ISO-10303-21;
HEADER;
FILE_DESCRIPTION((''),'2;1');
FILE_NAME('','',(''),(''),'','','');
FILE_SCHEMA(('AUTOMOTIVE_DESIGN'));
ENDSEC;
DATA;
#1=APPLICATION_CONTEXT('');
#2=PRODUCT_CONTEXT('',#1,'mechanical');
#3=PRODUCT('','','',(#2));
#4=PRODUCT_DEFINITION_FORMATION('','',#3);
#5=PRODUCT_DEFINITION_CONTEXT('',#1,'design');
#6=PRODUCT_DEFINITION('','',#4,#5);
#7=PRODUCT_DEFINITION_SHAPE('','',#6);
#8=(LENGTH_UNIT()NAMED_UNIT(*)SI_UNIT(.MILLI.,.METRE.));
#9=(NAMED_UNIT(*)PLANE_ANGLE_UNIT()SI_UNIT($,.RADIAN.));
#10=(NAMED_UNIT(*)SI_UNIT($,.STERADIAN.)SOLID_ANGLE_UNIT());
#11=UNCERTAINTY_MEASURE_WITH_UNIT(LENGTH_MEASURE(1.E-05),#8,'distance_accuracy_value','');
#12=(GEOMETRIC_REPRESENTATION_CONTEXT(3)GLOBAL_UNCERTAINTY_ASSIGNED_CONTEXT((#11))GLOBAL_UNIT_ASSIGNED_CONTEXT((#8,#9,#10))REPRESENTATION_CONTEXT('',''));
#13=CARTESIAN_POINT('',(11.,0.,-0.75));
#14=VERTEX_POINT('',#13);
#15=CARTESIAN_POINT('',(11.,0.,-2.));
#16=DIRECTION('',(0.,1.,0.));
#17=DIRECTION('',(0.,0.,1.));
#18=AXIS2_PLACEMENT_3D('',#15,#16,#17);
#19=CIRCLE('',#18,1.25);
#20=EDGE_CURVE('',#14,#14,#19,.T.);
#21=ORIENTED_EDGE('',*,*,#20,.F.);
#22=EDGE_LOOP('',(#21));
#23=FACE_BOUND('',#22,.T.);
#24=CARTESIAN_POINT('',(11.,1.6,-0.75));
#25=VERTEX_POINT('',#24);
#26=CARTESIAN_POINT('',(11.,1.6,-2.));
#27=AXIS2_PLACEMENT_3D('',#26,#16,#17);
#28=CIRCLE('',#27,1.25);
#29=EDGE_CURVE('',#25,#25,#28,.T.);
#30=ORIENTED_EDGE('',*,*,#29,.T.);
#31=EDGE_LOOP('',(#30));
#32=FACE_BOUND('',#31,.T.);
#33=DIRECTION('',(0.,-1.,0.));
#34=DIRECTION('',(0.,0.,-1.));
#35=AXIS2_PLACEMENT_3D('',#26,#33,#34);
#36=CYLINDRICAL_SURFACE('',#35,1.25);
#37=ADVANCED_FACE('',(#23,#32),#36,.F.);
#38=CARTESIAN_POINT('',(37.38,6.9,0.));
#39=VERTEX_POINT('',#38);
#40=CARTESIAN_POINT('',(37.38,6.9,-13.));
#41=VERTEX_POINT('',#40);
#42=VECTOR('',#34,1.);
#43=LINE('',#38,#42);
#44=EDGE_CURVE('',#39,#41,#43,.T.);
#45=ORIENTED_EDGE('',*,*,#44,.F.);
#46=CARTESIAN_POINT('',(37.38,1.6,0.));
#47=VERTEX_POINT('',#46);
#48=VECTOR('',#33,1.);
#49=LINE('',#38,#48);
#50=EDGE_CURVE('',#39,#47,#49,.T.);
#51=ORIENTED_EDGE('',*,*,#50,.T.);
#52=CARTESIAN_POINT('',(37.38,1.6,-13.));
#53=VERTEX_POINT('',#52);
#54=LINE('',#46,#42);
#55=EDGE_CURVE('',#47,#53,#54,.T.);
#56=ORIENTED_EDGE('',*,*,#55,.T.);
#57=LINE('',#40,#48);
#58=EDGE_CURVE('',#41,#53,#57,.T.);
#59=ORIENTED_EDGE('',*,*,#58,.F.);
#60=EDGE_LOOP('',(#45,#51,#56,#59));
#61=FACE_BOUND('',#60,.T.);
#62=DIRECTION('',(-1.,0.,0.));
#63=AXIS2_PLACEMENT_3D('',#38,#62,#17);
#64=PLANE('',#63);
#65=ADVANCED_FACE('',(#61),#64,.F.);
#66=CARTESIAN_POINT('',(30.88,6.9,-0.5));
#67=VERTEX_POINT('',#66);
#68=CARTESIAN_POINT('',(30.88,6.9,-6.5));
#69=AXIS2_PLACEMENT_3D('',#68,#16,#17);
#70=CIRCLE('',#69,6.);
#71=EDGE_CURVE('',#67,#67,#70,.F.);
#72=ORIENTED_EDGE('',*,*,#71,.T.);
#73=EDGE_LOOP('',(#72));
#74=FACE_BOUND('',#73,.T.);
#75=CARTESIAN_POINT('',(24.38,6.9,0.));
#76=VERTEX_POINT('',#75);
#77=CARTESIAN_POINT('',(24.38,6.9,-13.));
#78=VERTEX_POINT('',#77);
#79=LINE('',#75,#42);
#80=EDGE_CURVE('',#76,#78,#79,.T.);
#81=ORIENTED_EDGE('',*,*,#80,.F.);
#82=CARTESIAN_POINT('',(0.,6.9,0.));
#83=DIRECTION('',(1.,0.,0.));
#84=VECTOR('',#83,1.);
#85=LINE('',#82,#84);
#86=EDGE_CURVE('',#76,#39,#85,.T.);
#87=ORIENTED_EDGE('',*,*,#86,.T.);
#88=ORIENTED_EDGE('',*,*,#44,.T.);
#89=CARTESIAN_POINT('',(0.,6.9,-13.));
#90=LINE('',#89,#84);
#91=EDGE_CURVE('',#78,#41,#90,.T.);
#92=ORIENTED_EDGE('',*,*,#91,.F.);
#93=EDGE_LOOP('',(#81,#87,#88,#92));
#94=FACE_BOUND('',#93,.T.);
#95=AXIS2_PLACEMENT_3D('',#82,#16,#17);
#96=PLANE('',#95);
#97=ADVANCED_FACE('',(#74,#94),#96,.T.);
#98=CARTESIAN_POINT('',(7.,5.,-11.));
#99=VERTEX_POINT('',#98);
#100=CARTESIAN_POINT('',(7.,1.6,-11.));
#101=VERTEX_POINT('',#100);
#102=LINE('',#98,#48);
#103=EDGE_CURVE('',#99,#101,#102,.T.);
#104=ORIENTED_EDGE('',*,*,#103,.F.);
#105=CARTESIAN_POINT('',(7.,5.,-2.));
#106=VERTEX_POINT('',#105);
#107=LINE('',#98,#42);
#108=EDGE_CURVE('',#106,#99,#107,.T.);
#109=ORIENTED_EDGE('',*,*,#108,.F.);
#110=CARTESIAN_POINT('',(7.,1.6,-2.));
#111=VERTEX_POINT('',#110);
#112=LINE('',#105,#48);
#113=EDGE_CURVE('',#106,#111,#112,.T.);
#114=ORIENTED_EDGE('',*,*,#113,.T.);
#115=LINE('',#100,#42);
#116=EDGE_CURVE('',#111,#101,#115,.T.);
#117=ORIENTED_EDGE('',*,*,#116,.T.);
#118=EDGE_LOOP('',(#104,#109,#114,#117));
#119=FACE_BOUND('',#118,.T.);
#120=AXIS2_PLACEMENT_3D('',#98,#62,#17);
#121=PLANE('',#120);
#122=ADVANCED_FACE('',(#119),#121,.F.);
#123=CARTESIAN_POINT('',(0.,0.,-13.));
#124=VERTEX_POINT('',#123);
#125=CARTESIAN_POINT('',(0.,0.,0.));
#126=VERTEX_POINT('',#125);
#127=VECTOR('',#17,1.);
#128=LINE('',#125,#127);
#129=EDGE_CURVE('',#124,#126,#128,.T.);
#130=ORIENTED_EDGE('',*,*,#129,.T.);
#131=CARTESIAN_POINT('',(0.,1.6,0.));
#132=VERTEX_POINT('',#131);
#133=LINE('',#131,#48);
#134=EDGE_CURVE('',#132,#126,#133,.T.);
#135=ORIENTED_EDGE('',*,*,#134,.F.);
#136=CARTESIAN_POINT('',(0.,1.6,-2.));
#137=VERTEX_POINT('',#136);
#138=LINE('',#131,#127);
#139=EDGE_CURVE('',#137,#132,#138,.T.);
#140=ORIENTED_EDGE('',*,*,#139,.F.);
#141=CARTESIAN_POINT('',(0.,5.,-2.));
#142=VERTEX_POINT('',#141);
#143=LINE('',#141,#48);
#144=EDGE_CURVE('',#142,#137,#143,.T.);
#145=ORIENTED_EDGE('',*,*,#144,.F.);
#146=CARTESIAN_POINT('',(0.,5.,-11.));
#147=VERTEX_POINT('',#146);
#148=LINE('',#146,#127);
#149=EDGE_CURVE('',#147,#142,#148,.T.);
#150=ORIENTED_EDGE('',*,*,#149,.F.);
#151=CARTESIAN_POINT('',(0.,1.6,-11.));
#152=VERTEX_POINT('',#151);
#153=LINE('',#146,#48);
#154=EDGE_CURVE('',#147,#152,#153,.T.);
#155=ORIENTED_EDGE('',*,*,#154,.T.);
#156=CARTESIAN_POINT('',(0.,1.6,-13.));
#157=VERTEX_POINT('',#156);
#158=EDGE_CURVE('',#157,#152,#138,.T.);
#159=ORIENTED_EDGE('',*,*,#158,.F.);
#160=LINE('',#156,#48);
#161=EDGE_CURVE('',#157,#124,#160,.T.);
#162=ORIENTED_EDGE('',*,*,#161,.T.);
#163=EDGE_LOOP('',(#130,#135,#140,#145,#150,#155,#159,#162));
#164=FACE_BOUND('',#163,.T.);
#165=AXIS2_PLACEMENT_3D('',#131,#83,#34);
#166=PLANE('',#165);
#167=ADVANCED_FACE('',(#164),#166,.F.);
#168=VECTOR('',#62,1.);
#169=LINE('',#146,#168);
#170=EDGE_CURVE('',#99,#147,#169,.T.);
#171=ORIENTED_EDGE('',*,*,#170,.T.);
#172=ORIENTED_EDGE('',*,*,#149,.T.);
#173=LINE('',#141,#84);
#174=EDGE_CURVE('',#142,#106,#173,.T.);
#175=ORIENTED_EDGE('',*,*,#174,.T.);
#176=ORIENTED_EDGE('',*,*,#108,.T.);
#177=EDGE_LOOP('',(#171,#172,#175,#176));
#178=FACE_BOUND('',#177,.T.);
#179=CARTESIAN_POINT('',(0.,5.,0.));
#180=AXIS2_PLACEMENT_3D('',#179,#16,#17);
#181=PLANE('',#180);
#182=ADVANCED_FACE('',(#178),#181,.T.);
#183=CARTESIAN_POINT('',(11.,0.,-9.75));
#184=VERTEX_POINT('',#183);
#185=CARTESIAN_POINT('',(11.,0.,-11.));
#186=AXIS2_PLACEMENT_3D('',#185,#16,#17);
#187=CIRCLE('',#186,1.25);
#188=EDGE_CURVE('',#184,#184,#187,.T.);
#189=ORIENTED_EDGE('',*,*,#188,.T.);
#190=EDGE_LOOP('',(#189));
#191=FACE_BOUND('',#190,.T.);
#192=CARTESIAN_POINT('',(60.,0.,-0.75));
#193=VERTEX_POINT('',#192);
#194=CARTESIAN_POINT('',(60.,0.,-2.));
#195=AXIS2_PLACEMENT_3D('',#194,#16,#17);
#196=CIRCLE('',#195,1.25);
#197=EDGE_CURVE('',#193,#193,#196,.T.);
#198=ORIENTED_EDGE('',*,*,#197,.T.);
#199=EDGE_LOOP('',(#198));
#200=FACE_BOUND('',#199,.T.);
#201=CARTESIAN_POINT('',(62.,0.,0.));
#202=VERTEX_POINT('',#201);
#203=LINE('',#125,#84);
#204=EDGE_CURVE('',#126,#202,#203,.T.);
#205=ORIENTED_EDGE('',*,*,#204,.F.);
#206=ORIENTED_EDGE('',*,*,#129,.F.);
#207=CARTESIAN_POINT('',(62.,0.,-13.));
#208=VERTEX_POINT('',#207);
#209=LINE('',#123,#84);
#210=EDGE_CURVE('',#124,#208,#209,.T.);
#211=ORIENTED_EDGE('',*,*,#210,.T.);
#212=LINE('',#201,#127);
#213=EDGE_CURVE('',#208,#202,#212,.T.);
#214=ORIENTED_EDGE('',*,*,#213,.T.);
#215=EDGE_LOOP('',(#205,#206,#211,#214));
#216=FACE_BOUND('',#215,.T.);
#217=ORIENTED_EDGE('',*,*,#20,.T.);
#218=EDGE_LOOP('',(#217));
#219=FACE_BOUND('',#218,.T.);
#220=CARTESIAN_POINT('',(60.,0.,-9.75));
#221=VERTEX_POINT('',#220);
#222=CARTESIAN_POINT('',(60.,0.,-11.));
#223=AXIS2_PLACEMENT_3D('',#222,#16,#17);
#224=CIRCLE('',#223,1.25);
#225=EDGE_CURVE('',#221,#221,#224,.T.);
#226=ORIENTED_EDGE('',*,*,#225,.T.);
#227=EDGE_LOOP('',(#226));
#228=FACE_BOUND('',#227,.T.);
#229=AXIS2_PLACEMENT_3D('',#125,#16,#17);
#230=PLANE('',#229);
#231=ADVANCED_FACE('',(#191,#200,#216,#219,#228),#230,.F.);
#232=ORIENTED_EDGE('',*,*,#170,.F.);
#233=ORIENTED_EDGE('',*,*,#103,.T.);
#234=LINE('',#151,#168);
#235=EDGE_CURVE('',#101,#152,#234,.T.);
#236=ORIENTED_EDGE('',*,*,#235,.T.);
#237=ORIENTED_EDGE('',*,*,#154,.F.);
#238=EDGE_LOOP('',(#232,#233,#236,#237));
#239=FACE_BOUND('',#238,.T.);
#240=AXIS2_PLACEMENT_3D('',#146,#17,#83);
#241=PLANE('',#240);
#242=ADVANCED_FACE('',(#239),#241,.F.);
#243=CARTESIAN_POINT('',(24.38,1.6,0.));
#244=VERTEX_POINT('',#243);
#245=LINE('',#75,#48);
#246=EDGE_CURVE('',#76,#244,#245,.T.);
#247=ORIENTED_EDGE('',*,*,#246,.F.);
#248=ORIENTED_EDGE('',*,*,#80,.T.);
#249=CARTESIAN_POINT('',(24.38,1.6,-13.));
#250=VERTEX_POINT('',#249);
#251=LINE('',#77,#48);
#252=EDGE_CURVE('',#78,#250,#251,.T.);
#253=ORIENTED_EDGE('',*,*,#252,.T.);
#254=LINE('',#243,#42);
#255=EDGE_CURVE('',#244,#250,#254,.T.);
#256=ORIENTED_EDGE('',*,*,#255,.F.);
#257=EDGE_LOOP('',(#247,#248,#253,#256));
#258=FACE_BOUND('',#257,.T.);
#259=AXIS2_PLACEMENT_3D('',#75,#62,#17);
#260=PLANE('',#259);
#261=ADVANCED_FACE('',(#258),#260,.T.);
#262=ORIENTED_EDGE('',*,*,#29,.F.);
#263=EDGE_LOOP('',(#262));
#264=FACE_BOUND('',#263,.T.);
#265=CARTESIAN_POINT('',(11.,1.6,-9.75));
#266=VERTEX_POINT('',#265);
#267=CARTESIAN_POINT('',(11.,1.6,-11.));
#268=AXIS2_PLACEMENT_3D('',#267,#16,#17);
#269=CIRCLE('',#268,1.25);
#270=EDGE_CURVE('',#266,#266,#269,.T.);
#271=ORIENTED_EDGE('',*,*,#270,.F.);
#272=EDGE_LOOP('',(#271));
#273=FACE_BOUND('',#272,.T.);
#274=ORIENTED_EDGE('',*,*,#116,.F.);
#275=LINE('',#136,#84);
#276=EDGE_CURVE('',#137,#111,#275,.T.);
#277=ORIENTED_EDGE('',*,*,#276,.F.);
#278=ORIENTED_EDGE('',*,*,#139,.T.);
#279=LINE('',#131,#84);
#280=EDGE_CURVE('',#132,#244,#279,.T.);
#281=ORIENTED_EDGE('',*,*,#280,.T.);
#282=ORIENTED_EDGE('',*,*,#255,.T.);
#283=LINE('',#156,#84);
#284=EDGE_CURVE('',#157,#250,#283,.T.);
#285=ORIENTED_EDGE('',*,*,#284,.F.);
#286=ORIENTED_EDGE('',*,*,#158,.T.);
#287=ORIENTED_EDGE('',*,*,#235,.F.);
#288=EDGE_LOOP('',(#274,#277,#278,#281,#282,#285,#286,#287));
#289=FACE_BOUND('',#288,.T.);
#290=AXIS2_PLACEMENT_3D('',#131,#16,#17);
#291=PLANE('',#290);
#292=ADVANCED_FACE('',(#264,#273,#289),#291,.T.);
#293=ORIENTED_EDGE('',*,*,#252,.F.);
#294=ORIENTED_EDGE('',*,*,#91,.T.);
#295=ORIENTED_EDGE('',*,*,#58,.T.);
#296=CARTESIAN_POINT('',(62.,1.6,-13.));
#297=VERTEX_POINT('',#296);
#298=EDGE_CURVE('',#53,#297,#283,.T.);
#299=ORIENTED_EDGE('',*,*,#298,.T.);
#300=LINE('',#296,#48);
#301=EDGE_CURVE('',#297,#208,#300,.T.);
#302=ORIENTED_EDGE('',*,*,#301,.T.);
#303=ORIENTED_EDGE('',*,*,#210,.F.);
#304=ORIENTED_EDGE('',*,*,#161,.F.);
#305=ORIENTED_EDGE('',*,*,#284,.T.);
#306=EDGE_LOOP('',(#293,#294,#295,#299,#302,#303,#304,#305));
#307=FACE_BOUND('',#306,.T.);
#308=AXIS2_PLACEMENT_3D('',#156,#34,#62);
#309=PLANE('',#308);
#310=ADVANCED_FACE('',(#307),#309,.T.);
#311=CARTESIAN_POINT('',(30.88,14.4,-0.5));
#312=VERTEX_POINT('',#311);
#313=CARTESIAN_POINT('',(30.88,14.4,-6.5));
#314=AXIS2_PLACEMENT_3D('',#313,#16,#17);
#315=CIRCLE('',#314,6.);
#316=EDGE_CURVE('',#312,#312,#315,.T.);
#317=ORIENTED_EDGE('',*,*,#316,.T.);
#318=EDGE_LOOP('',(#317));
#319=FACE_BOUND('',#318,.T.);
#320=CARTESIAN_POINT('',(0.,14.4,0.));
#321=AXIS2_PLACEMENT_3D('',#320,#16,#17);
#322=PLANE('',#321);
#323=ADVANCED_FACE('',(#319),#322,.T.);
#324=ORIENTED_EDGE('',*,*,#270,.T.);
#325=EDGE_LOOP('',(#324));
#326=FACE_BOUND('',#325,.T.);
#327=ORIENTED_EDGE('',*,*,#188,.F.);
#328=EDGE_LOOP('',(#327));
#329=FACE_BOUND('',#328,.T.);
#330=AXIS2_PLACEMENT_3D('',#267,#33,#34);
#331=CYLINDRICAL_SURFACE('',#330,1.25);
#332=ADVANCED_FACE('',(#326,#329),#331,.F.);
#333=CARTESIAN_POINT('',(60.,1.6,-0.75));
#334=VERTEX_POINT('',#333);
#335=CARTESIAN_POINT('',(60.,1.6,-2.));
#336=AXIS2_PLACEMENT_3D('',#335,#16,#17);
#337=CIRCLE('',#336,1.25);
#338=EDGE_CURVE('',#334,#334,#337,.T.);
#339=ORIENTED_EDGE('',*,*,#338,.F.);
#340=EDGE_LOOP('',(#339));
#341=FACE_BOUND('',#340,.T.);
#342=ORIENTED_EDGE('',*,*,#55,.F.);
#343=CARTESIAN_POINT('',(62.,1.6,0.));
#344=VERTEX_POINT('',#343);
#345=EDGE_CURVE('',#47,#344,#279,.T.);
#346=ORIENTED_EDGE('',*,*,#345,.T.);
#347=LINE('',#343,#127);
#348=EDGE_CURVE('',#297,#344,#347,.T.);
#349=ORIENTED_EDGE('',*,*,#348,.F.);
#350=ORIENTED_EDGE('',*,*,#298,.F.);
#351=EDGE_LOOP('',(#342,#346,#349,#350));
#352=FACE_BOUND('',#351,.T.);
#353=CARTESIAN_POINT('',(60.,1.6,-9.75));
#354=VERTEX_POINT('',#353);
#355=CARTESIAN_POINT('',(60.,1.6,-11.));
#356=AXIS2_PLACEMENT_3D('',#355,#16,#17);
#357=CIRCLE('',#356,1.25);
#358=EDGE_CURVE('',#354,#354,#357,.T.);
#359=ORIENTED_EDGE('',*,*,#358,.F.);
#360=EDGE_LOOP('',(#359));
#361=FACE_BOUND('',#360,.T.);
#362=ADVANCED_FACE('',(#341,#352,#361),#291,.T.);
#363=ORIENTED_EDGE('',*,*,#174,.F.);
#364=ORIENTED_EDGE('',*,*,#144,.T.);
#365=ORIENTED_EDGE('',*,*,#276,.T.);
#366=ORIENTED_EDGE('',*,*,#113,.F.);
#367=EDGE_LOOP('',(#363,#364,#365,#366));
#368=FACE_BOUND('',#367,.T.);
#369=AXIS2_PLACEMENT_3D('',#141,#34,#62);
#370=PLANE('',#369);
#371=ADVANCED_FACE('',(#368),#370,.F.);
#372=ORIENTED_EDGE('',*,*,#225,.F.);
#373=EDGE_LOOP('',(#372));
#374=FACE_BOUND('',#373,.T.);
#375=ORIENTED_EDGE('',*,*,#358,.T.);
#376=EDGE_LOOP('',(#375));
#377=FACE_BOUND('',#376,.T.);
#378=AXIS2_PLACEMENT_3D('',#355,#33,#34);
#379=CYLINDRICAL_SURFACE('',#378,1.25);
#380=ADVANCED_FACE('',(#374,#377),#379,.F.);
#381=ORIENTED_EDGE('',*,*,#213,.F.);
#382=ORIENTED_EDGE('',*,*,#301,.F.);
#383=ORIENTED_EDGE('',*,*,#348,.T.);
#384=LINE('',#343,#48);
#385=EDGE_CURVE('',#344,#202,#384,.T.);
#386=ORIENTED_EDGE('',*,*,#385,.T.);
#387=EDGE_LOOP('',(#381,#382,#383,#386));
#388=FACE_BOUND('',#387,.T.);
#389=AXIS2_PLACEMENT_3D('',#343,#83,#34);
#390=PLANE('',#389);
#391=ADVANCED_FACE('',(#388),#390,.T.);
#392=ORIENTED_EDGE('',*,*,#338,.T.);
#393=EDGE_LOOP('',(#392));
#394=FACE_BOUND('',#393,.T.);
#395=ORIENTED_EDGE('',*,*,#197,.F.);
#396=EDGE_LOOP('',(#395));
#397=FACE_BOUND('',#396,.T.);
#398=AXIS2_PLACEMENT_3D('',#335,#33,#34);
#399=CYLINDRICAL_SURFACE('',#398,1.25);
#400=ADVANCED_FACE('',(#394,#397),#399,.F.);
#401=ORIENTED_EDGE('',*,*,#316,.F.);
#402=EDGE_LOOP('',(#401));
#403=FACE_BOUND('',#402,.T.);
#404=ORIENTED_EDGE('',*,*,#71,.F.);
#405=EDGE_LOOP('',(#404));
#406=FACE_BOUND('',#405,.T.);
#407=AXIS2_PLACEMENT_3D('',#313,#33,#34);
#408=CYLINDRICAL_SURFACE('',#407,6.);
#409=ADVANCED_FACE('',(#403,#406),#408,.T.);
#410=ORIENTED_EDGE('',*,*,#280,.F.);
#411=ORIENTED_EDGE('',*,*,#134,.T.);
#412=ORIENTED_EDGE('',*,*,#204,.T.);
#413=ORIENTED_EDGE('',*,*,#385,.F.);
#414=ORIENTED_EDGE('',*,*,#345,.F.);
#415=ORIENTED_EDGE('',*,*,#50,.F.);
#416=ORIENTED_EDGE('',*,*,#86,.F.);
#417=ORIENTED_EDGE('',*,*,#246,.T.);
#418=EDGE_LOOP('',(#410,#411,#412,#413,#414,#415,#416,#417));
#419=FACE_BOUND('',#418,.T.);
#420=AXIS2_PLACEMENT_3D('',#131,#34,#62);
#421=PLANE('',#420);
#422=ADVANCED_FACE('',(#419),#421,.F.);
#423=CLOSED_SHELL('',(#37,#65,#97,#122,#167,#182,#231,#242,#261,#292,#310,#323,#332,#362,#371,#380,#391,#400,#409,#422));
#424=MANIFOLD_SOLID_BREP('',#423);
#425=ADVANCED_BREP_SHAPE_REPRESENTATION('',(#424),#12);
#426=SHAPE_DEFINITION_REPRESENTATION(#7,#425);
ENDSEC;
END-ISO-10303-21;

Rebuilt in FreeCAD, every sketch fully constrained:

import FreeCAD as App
import Part
import Sketcher

V = App.Vector


def add_polygon(sketch, points):
    """Adds a closed chain of lines whose ends are joined by coincident constraints."""
    first, n = sketch.GeometryCount, len(points)
    for a, b in zip(points, points[1:] + points[:1]):
        sketch.addGeometry(Part.LineSegment(App.Vector(*a, 0), App.Vector(*b, 0)), False)
    for i in range(n):
        sketch.addConstraint(Sketcher.Constraint("Coincident", first + i, 2, first + (i + 1) % n, 1))

doc = App.newDocument("Part")
body = doc.addObject("PartDesign::Body", "Body")

sketch1 = doc.addObject("Sketcher::SketchObject", "Sketch")
body.addObject(sketch1)
sketch1.AttachmentSupport = (doc.XZ_Plane, [""])
sketch1.MapMode = "FlatFace"
add_polygon(sketch1, [(37.4, -13), (37.4, 0), (62, 0), (62, -13)])
sketch1.addGeometry(Part.Circle(V(60, -2, 0), V(0, 0, 1), 1.2), False)
sketch1.addGeometry(Part.Circle(V(60, -11, 0), V(0, 0, 1), 1.2), False)
sketch1.addConstraint([
    Sketcher.Constraint("Vertical", 0),
    Sketcher.Constraint("Horizontal", 1),
    Sketcher.Constraint("Vertical", 2),
    Sketcher.Constraint("Horizontal", 3),
    Sketcher.Constraint("Equal", 4, 5),
    Sketcher.Constraint("PointOnObject", 0, 2, -1),
    Sketcher.Constraint("Vertical", 4, 3, 5, 3),
    Sketcher.Constraint("Diameter", 4, 2.5),
    Sketcher.Constraint("DistanceY", 0, 1, 0, 2, 13.0),
    Sketcher.Constraint("DistanceX", -1, 1, 4, 3, 60.0),
    Sketcher.Constraint("DistanceY", 4, 3, -1, 1, 2.0),
    Sketcher.Constraint("DistanceY", 5, 3, -1, 1, 11.0),
    Sketcher.Constraint("DistanceX", -1, 1, 1, 2, 62.0),
    Sketcher.Constraint("DistanceX", 1, 1, 1, 2, 24.62),
])
pad1 = doc.addObject("PartDesign::Pad", "Pad")
body.addObject(pad1)
pad1.Profile = sketch1
pad1.Length = 1.6
pad1.Reversed = True
body2 = doc.addObject("PartDesign::Body", "Body001")

sketch2 = doc.addObject("Sketcher::SketchObject", "Sketch001")
body2.addObject(sketch2)
sketch2.AttachmentSupport = (doc.getObject("XZ_Plane001"), [""])
sketch2.MapMode = "FlatFace"
add_polygon(sketch2, [(0, -13), (0, 0), (24.4, 0), (24.4, -13)])
sketch2.addGeometry(Part.Circle(V(11, -2, 0), V(0, 0, 1), 1.2), False)
sketch2.addGeometry(Part.Circle(V(11, -11, 0), V(0, 0, 1), 1.2), False)
sketch2.addConstraint([
    Sketcher.Constraint("Vertical", 0),
    Sketcher.Constraint("Horizontal", 1),
    Sketcher.Constraint("Vertical", 2),
    Sketcher.Constraint("Horizontal", 3),
    Sketcher.Constraint("Coincident", 0, 2, -1, 1),
    Sketcher.Constraint("Equal", 4, 5),
    Sketcher.Constraint("Vertical", 4, 3, 5, 3),
    Sketcher.Constraint("Diameter", 4, 2.5),
    Sketcher.Constraint("DistanceY", 0, 1, 0, 2, 13.0),
    Sketcher.Constraint("DistanceX", -1, 1, 4, 3, 11.0),
    Sketcher.Constraint("DistanceY", 4, 3, -1, 1, 2.0),
    Sketcher.Constraint("DistanceY", 5, 3, -1, 1, 11.0),
    Sketcher.Constraint("DistanceX", 1, 1, 1, 2, 24.38),
])
pad2 = doc.addObject("PartDesign::Pad", "Pad001")
body2.addObject(pad2)
pad2.Profile = sketch2
pad2.Length = 1.6
pad2.Reversed = True
body.AllowCompound = True
doc.recompute()

boolean = doc.addObject("PartDesign::Boolean", "Boolean")
body.addObject(boolean)
boolean.Type = "Fuse"
boolean.addObjects([body2])

sketch3 = doc.addObject("Sketcher::SketchObject", "Sketch002")
body.addObject(sketch3)
sketch3.AttachmentSupport = (doc.XZ_Plane, [""])
sketch3.MapMode = "FlatFace"
add_polygon(sketch3, [(24, -13), (24, 0), (37, 0), (37, -13)])
sketch3.addConstraint([
    Sketcher.Constraint("Vertical", 0),
    Sketcher.Constraint("Horizontal", 1),
    Sketcher.Constraint("Vertical", 2),
    Sketcher.Constraint("Horizontal", 3),
    Sketcher.Constraint("PointOnObject", 0, 2, -1),
    Sketcher.Constraint("Equal", 3, 0),
    Sketcher.Constraint("DistanceX", 1, 1, 1, 2, 13.0),
    Sketcher.Constraint("DistanceX", -1, 1, 0, 2, 24.38),
])
pad3 = doc.addObject("PartDesign::Pad", "Pad002")
body.addObject(pad3)
pad3.Profile = sketch3
pad3.Length = 6.9
pad3.Reversed = True

sketch4 = doc.addObject("Sketcher::SketchObject", "Sketch003")
body.addObject(sketch4)
sketch4.AttachmentSupport = (doc.XZ_Plane, [""])
sketch4.MapMode = "FlatFace"
sketch4.addGeometry(Part.Circle(V(31, -6, 0), V(0, 0, 1), 6), False)
sketch4.addConstraint([
    Sketcher.Constraint("Diameter", 0, 12.0),
    Sketcher.Constraint("DistanceY", 0, 3, -1, 1, 6.5),
    Sketcher.Constraint("DistanceX", -1, 1, 0, 3, 30.88),
])
pad4 = doc.addObject("PartDesign::Pad", "Pad003")
body.addObject(pad4)
pad4.Profile = sketch4
pad4.Length = 14.4
pad4.Reversed = True

sketch5 = doc.addObject("Sketcher::SketchObject", "Sketch004")
body.addObject(sketch5)
sketch5.AttachmentSupport = (doc.XZ_Plane, [""])
sketch5.MapMode = "FlatFace"
sketch5.AttachmentOffset = App.Placement(V(0, 0, -1.6), App.Rotation())
add_polygon(sketch5, [(0, -11), (0, -2), (7, -2), (7, -11)])
sketch5.addConstraint([
    Sketcher.Constraint("Vertical", 0),
    Sketcher.Constraint("Horizontal", 1),
    Sketcher.Constraint("Vertical", 2),
    Sketcher.Constraint("Horizontal", 3),
    Sketcher.Constraint("PointOnObject", 0, 2, -2),
    Sketcher.Constraint("DistanceX", 1, 1, 1, 2, 7.0),
    Sketcher.Constraint("DistanceY", 0, 1, 0, 2, 9.0),
    Sketcher.Constraint("DistanceY", 0, 2, -1, 1, 2.0),
])
pad5 = doc.addObject("PartDesign::Pad", "Pad004")
body.addObject(pad5)
pad5.Profile = sketch5
pad5.Length = 3.4
pad5.Reversed = True

doc.recompute()
